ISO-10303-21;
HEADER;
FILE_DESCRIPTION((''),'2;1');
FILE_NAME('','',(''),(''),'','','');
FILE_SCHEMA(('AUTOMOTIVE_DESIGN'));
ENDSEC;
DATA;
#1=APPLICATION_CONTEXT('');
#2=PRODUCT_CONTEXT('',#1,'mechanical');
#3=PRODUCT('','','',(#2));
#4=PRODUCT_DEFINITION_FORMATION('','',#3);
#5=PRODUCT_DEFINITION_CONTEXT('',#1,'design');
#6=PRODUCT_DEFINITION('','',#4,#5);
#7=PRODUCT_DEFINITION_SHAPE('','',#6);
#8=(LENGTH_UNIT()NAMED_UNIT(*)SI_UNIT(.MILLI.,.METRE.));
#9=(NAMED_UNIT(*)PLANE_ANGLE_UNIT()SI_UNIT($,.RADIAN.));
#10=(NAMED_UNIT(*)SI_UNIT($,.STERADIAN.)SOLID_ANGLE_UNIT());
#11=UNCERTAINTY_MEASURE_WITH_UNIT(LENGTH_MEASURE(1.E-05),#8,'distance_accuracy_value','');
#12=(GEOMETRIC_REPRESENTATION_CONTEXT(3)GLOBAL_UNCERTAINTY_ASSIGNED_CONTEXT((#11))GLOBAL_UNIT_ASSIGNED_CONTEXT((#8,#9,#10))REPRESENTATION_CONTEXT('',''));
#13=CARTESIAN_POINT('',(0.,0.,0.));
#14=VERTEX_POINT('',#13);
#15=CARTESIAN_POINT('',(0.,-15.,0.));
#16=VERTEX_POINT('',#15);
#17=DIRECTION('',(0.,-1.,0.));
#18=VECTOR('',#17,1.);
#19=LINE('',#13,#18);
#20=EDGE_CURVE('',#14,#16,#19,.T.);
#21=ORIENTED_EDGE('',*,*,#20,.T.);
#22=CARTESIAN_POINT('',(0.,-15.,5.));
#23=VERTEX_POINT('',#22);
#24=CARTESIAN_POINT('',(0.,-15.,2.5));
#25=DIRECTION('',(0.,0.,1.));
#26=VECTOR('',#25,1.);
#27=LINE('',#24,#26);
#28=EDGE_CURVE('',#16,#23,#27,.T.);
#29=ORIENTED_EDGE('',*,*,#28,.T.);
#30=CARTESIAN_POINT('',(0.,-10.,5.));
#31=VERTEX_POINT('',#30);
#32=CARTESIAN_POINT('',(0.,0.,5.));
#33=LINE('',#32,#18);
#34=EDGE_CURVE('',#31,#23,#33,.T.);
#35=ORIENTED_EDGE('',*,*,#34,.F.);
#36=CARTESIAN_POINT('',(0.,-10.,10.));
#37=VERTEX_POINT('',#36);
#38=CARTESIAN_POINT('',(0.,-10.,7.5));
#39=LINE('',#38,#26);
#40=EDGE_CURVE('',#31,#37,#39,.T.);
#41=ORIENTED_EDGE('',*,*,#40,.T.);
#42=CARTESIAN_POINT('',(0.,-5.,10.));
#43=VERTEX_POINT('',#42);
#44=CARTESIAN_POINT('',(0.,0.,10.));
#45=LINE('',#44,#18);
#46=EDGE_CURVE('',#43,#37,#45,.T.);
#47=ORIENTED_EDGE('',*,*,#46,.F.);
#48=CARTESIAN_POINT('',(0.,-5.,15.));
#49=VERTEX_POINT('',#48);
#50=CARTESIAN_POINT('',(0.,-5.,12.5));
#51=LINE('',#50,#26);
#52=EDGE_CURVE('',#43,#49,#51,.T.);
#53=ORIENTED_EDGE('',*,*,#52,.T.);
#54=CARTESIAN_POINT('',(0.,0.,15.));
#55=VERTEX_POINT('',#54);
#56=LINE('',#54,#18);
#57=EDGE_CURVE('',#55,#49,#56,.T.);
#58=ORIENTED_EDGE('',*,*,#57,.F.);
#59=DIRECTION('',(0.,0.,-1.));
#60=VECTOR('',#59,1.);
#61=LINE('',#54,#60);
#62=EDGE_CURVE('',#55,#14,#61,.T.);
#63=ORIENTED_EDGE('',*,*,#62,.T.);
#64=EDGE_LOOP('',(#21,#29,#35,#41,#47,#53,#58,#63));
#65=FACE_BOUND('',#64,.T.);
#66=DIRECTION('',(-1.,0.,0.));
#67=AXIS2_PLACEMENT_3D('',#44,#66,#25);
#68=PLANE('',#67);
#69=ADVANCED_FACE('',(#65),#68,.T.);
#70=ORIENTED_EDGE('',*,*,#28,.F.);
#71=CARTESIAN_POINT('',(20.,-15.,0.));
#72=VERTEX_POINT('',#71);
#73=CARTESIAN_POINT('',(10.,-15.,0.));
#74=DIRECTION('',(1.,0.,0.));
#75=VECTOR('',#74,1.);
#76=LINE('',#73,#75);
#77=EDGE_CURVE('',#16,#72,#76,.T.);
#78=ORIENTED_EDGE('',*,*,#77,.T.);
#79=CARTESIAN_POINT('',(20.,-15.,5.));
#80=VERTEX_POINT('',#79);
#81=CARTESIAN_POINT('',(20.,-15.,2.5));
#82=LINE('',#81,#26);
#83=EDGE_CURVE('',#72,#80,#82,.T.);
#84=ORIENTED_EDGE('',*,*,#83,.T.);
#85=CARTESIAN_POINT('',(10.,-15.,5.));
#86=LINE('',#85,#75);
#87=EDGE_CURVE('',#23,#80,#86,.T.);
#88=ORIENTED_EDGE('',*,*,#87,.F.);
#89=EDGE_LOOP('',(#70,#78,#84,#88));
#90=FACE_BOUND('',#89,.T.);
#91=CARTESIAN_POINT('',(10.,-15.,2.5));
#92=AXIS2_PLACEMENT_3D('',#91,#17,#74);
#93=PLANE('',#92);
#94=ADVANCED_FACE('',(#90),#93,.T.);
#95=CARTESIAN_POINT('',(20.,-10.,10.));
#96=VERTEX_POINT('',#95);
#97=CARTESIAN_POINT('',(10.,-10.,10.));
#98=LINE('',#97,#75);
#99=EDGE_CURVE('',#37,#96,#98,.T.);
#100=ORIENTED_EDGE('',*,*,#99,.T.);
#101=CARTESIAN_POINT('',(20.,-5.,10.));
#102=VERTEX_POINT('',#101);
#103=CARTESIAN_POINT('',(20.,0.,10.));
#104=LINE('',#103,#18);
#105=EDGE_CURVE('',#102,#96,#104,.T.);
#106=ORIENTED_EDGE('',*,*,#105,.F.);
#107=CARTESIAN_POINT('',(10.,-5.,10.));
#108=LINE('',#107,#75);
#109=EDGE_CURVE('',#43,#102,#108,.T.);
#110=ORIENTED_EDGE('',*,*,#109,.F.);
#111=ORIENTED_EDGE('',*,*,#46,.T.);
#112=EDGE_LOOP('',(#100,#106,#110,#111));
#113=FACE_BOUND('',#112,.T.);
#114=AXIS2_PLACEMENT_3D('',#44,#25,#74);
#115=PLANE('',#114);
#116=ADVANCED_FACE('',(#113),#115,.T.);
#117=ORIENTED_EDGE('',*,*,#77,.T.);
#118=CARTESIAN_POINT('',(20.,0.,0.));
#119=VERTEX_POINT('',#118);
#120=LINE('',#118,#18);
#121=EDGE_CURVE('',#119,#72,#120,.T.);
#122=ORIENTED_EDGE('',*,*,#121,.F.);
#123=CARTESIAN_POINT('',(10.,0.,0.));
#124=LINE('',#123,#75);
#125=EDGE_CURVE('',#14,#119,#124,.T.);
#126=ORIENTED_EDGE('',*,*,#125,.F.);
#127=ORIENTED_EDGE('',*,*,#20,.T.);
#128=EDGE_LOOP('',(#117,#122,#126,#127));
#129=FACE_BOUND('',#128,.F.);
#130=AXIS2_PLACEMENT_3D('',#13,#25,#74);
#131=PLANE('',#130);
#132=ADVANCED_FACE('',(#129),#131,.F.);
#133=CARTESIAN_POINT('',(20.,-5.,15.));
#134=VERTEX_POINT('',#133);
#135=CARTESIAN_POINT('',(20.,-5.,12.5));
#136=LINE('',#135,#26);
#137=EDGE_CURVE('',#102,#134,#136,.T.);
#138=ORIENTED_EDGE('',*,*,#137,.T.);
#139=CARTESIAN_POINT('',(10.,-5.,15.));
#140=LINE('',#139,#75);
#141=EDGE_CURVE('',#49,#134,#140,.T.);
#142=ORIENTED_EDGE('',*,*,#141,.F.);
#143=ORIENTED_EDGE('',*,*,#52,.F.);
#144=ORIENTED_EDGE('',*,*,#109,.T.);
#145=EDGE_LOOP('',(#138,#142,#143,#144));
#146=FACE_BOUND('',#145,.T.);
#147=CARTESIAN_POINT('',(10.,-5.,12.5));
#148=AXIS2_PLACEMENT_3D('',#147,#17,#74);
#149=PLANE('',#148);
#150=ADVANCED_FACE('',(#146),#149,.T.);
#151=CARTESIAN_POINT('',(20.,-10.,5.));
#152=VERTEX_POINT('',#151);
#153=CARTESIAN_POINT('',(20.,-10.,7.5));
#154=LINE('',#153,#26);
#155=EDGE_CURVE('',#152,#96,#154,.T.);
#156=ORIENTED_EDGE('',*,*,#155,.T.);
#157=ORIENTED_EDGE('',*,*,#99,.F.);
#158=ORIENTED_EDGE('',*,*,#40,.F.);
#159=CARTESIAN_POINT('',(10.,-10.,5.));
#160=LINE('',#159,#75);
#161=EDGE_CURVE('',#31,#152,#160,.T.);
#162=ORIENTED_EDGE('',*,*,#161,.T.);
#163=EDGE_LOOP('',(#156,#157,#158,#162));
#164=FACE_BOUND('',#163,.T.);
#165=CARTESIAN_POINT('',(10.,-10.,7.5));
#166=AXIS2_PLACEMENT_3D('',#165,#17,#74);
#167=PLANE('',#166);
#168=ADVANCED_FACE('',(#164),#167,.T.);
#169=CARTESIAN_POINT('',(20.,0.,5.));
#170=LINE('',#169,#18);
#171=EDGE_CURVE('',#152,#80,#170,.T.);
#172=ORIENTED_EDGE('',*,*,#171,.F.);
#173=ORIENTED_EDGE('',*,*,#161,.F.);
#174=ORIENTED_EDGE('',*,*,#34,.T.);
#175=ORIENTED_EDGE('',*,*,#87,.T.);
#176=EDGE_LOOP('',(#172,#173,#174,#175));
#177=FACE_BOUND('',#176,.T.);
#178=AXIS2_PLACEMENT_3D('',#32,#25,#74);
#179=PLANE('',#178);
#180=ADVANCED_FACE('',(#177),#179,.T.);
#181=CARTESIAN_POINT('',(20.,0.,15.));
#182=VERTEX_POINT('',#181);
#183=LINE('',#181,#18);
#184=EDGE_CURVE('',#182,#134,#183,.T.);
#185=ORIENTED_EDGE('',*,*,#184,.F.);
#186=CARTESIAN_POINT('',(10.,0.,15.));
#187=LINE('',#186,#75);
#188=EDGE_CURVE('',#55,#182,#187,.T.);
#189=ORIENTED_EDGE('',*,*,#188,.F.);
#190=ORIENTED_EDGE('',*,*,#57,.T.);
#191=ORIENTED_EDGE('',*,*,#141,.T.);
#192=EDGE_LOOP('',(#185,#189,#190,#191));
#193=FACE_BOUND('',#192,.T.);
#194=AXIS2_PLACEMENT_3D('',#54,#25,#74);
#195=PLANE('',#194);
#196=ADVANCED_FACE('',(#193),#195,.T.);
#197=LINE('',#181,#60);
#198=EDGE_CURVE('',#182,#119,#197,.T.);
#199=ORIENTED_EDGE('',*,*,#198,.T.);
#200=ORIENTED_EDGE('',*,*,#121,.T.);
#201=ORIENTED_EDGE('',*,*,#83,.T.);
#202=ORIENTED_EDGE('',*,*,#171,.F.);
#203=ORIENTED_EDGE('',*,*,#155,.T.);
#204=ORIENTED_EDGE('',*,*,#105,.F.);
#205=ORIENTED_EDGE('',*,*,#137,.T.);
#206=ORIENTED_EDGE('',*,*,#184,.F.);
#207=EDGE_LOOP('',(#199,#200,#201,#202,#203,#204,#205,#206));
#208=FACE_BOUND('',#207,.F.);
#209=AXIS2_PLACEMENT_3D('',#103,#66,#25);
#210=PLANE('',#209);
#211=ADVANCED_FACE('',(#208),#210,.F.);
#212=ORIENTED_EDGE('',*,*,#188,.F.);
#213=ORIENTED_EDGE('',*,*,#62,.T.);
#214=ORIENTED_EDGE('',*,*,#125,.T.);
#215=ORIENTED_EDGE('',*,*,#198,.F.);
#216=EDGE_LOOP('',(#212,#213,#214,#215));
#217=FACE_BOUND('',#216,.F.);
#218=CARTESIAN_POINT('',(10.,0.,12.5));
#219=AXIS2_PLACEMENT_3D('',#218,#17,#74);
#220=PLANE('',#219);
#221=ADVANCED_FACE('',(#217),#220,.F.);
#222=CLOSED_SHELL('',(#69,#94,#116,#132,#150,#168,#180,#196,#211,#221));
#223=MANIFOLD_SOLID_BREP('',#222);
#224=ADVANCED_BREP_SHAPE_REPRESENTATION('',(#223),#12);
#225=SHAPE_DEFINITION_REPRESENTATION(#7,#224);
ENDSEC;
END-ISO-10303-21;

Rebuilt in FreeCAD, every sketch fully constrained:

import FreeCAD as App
import Part
import Sketcher
from FreeCAD import Vector
Q = App.Units.Quantity

doc = App.newDocument("Part")
body = doc.addObject("PartDesign::Body", "Body")

sketch1 = body.newObject("Sketcher::SketchObject", "Sketch")
sketch1.AttachmentSupport = (doc.getObject("XZ_Plane"), [""])
sketch1.MapMode = "FlatFace"
sketch1.addGeometry([
    Part.LineSegment(Vector(0, 5, 0), Vector(0, 0, 0)),
    Part.LineSegment(Vector(0, 0, 0), Vector(20, 0, 0)),
    Part.LineSegment(Vector(20, 0, 0), Vector(20, 5, 0)),
    Part.LineSegment(Vector(20, 5, 0), Vector(0, 5, 0)),
], False)
sketch1.addConstraint([
    Sketcher.Constraint("Coincident", 0, 2, 1, 1),
    Sketcher.Constraint("Coincident", 1, 2, 2, 1),
    Sketcher.Constraint("Coincident", 2, 2, 3, 1),
    Sketcher.Constraint("Coincident", 3, 2, 0, 1),
    Sketcher.Constraint("Vertical", 0),
    Sketcher.Constraint("Horizontal", 1),
    Sketcher.Constraint("Vertical", 2),
    Sketcher.Constraint("Horizontal", 3),
    Sketcher.Constraint("Coincident", 0, 2, -1, 1),
    Sketcher.Constraint("DistanceX", 1, 1, 1, 2, Q("20 mm")),
    Sketcher.Constraint("DistanceY", 0, 2, 0, 1, Q("5 mm")),
])
pad1 = body.newObject("PartDesign::Pad", "Pad")
pad1.Profile = sketch1
pad1.Length = 15

sketch2 = body.newObject("Sketcher::SketchObject", "Sketch001")
sketch2.AttachmentSupport = (doc.getObject("XZ_Plane"), [""])
sketch2.MapMode = "FlatFace"
sketch2.addGeometry([
    Part.LineSegment(Vector(0, 10, 0), Vector(0, 5, 0)),
    Part.LineSegment(Vector(0, 5, 0), Vector(20, 5, 0)),
    Part.LineSegment(Vector(20, 5, 0), Vector(20, 10, 0)),
    Part.LineSegment(Vector(20, 10, 0), Vector(0, 10, 0)),
], False)
sketch2.addConstraint([
    Sketcher.Constraint("Coincident", 0, 2, 1, 1),
    Sketcher.Constraint("Coincident", 1, 2, 2, 1),
    Sketcher.Constraint("Coincident", 2, 2, 3, 1),
    Sketcher.Constraint("Coincident", 3, 2, 0, 1),
    Sketcher.Constraint("Vertical", 0),
    Sketcher.Constraint("Horizontal", 1),
    Sketcher.Constraint("Vertical", 2),
    Sketcher.Constraint("Horizontal", 3),
    Sketcher.Constraint("PointOnObject", 0, 2, -2),
    Sketcher.Constraint("DistanceX", 1, 1, 1, 2, Q("20 mm")),
    Sketcher.Constraint("DistanceY", 0, 2, 0, 1, Q("5 mm")),
    Sketcher.Constraint("DistanceY", -1, 1, 0, 2, Q("5 mm")),
])
pad2 = body.newObject("PartDesign::Pad", "Pad001")
pad2.Profile = sketch2
pad2.Length = 10

sketch3 = body.newObject("Sketcher::SketchObject", "Sketch002")
sketch3.AttachmentSupport = (doc.getObject("XZ_Plane"), [""])
sketch3.MapMode = "FlatFace"
sketch3.addGeometry([
    Part.LineSegment(Vector(0, 15, 0), Vector(0, 10, 0)),
    Part.LineSegment(Vector(0, 10, 0), Vector(20, 10, 0)),
    Part.LineSegment(Vector(20, 10, 0), Vector(20, 15, 0)),
    Part.LineSegment(Vector(20, 15, 0), Vector(0, 15, 0)),
], False)
sketch3.addConstraint([
    Sketcher.Constraint("Coincident", 0, 2, 1, 1),
    Sketcher.Constraint("Coincident", 1, 2, 2, 1),
    Sketcher.Constraint("Coincident", 2, 2, 3, 1),
    Sketcher.Constraint("Coincident", 3, 2, 0, 1),
    Sketcher.Constraint("Vertical", 0),
    Sketcher.Constraint("Horizontal", 1),
    Sketcher.Constraint("Vertical", 2),
    Sketcher.Constraint("Horizontal", 3),
    Sketcher.Constraint("PointOnObject", 0, 2, -2),
    Sketcher.Constraint("DistanceX", 1, 1, 1, 2, Q("20 mm")),
    Sketcher.Constraint("DistanceY", 0, 2, 0, 1, Q("5 mm")),
    Sketcher.Constraint("DistanceY", -1, 1, 0, 2, Q("10 mm")),
])
pad3 = body.newObject("PartDesign::Pad", "Pad002")
pad3.Profile = sketch3
pad3.Length = 5

doc.recompute()
